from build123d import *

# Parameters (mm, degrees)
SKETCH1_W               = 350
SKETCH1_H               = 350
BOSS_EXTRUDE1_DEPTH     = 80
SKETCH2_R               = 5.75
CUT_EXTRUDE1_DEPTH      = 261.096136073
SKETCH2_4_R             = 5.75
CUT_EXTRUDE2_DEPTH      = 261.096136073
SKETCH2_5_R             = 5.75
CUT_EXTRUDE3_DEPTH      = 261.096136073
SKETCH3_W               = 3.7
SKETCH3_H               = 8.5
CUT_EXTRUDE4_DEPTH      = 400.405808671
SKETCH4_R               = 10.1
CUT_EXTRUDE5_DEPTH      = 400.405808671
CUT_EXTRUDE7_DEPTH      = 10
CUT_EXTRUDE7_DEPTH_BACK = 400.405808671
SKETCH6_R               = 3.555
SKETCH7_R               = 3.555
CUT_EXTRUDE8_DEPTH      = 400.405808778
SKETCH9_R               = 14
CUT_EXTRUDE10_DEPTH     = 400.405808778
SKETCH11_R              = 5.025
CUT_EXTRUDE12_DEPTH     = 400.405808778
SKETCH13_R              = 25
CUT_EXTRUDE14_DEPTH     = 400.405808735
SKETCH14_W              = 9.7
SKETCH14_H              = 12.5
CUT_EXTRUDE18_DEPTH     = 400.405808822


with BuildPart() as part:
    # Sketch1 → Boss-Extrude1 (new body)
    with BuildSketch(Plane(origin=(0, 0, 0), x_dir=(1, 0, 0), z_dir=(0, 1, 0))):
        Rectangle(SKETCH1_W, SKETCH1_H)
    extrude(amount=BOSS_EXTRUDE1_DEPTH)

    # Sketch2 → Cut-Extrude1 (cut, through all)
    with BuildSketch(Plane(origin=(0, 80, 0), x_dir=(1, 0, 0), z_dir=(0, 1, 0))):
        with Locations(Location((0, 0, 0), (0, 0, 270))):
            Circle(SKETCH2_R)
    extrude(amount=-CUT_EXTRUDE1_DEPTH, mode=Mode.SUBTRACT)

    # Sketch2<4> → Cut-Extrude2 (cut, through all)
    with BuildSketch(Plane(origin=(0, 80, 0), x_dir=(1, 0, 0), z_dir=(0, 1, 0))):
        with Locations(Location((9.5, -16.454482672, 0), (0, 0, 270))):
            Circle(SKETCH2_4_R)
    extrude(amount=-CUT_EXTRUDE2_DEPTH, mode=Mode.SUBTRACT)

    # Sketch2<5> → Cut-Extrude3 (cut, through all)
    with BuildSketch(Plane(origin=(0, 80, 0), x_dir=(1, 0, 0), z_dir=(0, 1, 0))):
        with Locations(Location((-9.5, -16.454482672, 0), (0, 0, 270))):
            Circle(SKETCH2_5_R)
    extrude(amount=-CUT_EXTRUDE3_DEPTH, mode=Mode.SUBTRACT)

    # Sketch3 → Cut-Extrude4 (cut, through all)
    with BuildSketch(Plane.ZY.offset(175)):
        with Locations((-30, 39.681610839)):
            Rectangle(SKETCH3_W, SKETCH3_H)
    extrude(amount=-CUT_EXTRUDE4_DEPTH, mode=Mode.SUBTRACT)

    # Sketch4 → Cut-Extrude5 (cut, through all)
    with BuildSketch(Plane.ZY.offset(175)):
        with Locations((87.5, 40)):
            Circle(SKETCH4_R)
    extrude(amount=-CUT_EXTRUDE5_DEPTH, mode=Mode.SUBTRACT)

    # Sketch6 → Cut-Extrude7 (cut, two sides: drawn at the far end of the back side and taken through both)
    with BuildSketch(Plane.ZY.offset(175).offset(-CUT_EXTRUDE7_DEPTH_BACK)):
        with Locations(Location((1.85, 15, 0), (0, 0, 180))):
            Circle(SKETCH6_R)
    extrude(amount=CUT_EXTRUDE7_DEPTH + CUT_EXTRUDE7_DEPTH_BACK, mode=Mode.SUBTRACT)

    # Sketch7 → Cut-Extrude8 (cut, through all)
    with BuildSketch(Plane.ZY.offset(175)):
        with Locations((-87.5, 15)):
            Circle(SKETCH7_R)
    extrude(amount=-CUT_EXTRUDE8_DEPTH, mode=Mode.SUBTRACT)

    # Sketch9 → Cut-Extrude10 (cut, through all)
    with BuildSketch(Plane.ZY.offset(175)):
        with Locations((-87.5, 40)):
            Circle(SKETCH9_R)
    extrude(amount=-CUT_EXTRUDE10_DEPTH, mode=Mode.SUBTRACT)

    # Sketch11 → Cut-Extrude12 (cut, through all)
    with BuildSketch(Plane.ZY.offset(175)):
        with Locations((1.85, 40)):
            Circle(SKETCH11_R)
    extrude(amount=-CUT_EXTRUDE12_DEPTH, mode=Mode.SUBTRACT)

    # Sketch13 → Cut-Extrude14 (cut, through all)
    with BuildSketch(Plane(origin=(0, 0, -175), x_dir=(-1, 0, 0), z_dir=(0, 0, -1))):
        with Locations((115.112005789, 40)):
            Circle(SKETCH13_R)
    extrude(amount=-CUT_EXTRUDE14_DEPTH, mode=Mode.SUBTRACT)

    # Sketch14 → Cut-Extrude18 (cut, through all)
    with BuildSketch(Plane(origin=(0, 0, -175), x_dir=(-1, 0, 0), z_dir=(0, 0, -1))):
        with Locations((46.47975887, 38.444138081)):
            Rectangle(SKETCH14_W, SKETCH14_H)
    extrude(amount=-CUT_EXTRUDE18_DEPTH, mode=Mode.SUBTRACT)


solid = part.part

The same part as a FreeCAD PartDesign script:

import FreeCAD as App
import Part
import Sketcher
from FreeCAD import Vector


def add_polygon(sketch, points):
    """Adds a closed chain of lines whose ends are joined by coincident constraints."""
    first, n = sketch.GeometryCount, len(points)
    for a, b in zip(points, points[1:] + points[:1]):
        sketch.addGeometry(Part.LineSegment(App.Vector(*a, 0), App.Vector(*b, 0)), False)
    for i in range(n):
        sketch.addConstraint(Sketcher.Constraint("Coincident", first + i, 2, first + (i + 1) % n, 1))

doc = App.newDocument("Part")
body = doc.addObject("PartDesign::Body", "Body")

# Sketch on XZ plane
sketch1 = body.newObject("Sketcher::SketchObject", "Sketch")
sketch1.AttachmentSupport = (doc.getObject("XZ_Plane"), [""])
sketch1.MapMode = "FlatFace"
add_polygon(sketch1, [(-175, -175), (-175, 175), (175, 175), (175, -175)])  # lines 0-3
sketch1.addConstraint([
    Sketcher.Constraint("Vertical", 0),
    Sketcher.Constraint("Horizontal", 1),
    Sketcher.Constraint("Vertical", 2),
    Sketcher.Constraint("Horizontal", 3),
    Sketcher.Constraint("Symmetric", 0, 2, 2, 2, -1, 1),
    Sketcher.Constraint("Equal", 3, 0),
    Sketcher.Constraint("DistanceX", 1, 1, 1, 2, 350.0),
])
pad1 = body.newObject("PartDesign::Pad", "Pad")
pad1.Profile = sketch1
pad1.Length = 80
pad1.Reversed = True

# Sketch on XZ plane
sketch2 = body.newObject("Sketcher::SketchObject", "Sketch001")
sketch2.AttachmentSupport = (doc.getObject("XZ_Plane"), [""])
sketch2.MapMode = "FlatFace"
sketch2.AttachmentOffset = App.Placement(Vector(0, 0, -80), App.Rotation())
sketch2.addGeometry(Part.Circle(Vector(0, 0, 0), Vector(0, 0, 1), 5.75), False)
sketch2.addConstraint([
    Sketcher.Constraint("Coincident", 0, 3, -1, 1),
    Sketcher.Constraint("Diameter", 0, 11.5),
])
pocket1 = body.newObject("PartDesign::Pocket", "Pocket")
pocket1.Profile = sketch2
pocket1.Type = "ThroughAll"
pocket1.Reversed = True

# Sketch on XZ plane
sketch3 = body.newObject("Sketcher::SketchObject", "Sketch002")
sketch3.AttachmentSupport = (doc.getObject("XZ_Plane"), [""])
sketch3.MapMode = "FlatFace"
sketch3.AttachmentOffset = App.Placement(Vector(0, 0, -80), App.Rotation())
sketch3.addGeometry(Part.Circle(Vector(9.5, 16.454483, 0), Vector(0, 0, 1), 5.75), False)
sketch3.addConstraint([
    Sketcher.Constraint("Diameter", 0, 11.5),
    Sketcher.Constraint("DistanceX", -1, 1, 0, 3, 9.5),
    Sketcher.Constraint("DistanceY", -1, 1, 0, 3, 16.454483),
])
pocket2 = body.newObject("PartDesign::Pocket", "Pocket001")
pocket2.Profile = sketch3
pocket2.Type = "ThroughAll"
pocket2.Reversed = True

# Sketch on XZ plane
sketch4 = body.newObject("Sketcher::SketchObject", "Sketch003")
sketch4.AttachmentSupport = (doc.getObject("XZ_Plane"), [""])
sketch4.MapMode = "FlatFace"
sketch4.AttachmentOffset = App.Placement(Vector(0, 0, -80), App.Rotation())
sketch4.addGeometry(Part.Circle(Vector(-9.5, 16.454483, 0), Vector(0, 0, 1), 5.75), False)
sketch4.addConstraint([
    Sketcher.Constraint("Diameter", 0, 11.5),
    Sketcher.Constraint("DistanceX", 0, 3, -1, 1, 9.5),
    Sketcher.Constraint("DistanceY", -1, 1, 0, 3, 16.454483),
])
pocket3 = body.newObject("PartDesign::Pocket", "Pocket002")
pocket3.Profile = sketch4
pocket3.Type = "ThroughAll"
pocket3.Reversed = True

# Sketch on YZ plane
sketch5 = body.newObject("Sketcher::SketchObject", "Sketch004")
sketch5.AttachmentSupport = (doc.getObject("YZ_Plane"), [""])
sketch5.MapMode = "FlatFace"
sketch5.AttachmentOffset = App.Placement(Vector(0, 0, -175), App.Rotation())
add_polygon(sketch5, [(43.931611, -31.85), (35.431611, -31.85), (35.431611, -28.15), (43.931611, -28.15)])  # lines 0-3
sketch5.addConstraint([
    Sketcher.Constraint("Horizontal", 0),
    Sketcher.Constraint("Vertical", 1),
    Sketcher.Constraint("Horizontal", 2),
    Sketcher.Constraint("Vertical", 3),
    Sketcher.Constraint("DistanceX", 0, 2, 0, 1, 8.5),
    Sketcher.Constraint("DistanceY", 1, 1, 1, 2, 3.7),
    Sketcher.Constraint("DistanceY", 0, 2, -1, 1, 31.85),
    Sketcher.Constraint("DistanceX", -1, 1, 0, 2, 35.431611),
])
pocket4 = body.newObject("PartDesign::Pocket", "Pocket003")
pocket4.Profile = sketch5
pocket4.Type = "ThroughAll"
pocket4.Reversed = True

# Sketch on YZ plane
sketch6 = body.newObject("Sketcher::SketchObject", "Sketch005")
sketch6.AttachmentSupport = (doc.getObject("YZ_Plane"), [""])
sketch6.MapMode = "FlatFace"
sketch6.AttachmentOffset = App.Placement(Vector(0, 0, -175), App.Rotation())
sketch6.addGeometry(Part.Circle(Vector(40, 87.5, 0), Vector(0, 0, 1), 10.1), False)
sketch6.addConstraint([
    Sketcher.Constraint("Diameter", 0, 20.2),
    Sketcher.Constraint("DistanceX", -1, 1, 0, 3, 40.0),
    Sketcher.Constraint("DistanceY", -1, 1, 0, 3, 87.5),
])
pocket5 = body.newObject("PartDesign::Pocket", "Pocket004")
pocket5.Profile = sketch6
pocket5.Type = "ThroughAll"
pocket5.Reversed = True

# Sketch on YZ plane
sketch7 = body.newObject("Sketcher::SketchObject", "Sketch006")
sketch7.AttachmentSupport = (doc.getObject("YZ_Plane"), [""])
sketch7.MapMode = "FlatFace"
sketch7.AttachmentOffset = App.Placement(Vector(0, 0, -175), App.Rotation())
sketch7.addGeometry(Part.Circle(Vector(15, 1.85, 0), Vector(0, 0, 1), 3.555), False)
sketch7.addConstraint([
    Sketcher.Constraint("Diameter", 0, 7.11),
    Sketcher.Constraint("DistanceX", -1, 1, 0, 3, 15.0),
    Sketcher.Constraint("DistanceY", -1, 1, 0, 3, 1.85),
])
pocket6 = body.newObject("PartDesign::Pocket", "Pocket005")
pocket6.Profile = sketch7
pocket6.Type = "ThroughAll"
pocket6.Midplane = True

# Sketch on YZ plane
sketch8 = body.newObject("Sketcher::SketchObject", "Sketch007")
sketch8.AttachmentSupport = (doc.getObject("YZ_Plane"), [""])
sketch8.MapMode = "FlatFace"
sketch8.AttachmentOffset = App.Placement(Vector(0, 0, -175), App.Rotation())
sketch8.addGeometry(Part.Circle(Vector(15, -87.5, 0), Vector(0, 0, 1), 3.555), False)
sketch8.addConstraint([
    Sketcher.Constraint("Diameter", 0, 7.11),
    Sketcher.Constraint("DistanceX", -1, 1, 0, 3, 15.0),
    Sketcher.Constraint("DistanceY", 0, 3, -1, 1, 87.5),
])
pocket7 = body.newObject("PartDesign::Pocket", "Pocket006")
pocket7.Profile = sketch8
pocket7.Type = "ThroughAll"
pocket7.Reversed = True

# Sketch on YZ plane
sketch9 = body.newObject("Sketcher::SketchObject", "Sketch008")
sketch9.AttachmentSupport = (doc.getObject("YZ_Plane"), [""])
sketch9.MapMode = "FlatFace"
sketch9.AttachmentOffset = App.Placement(Vector(0, 0, -175), App.Rotation())
sketch9.addGeometry(Part.Circle(Vector(40, -87.5, 0), Vector(0, 0, 1), 14), False)
sketch9.addConstraint([
    Sketcher.Constraint("Diameter", 0, 28.0),
    Sketcher.Constraint("DistanceX", -1, 1, 0, 3, 40.0),
    Sketcher.Constraint("DistanceY", 0, 3, -1, 1, 87.5),
])
pocket8 = body.newObject("PartDesign::Pocket", "Pocket007")
pocket8.Profile = sketch9
pocket8.Type = "ThroughAll"
pocket8.Reversed = True

# Sketch on YZ plane
sketch10 = body.newObject("Sketcher::SketchObject", "Sketch009")
sketch10.AttachmentSupport = (doc.getObject("YZ_Plane"), [""])
sketch10.MapMode = "FlatFace"
sketch10.AttachmentOffset = App.Placement(Vector(0, 0, -175), App.Rotation())
sketch10.addGeometry(Part.Circle(Vector(40, 1.85, 0), Vector(0, 0, 1), 5.025), False)
sketch10.addConstraint([
    Sketcher.Constraint("Diameter", 0, 10.05),
    Sketcher.Constraint("DistanceX", -1, 1, 0, 3, 40.0),
    Sketcher.Constraint("DistanceY", -1, 1, 0, 3, 1.85),
])
pocket9 = body.newObject("PartDesign::Pocket", "Pocket008")
pocket9.Profile = sketch10
pocket9.Type = "ThroughAll"
pocket9.Reversed = True

# Sketch on XY plane
sketch11 = body.newObject("Sketcher::SketchObject", "Sketch010")
sketch11.AttachmentSupport = (doc.getObject("XY_Plane"), [""])
sketch11.MapMode = "FlatFace"
sketch11.AttachmentOffset = App.Placement(Vector(0, 0, -175), App.Rotation())
sketch11.addGeometry(Part.Circle(Vector(-115.112006, 40, 0), Vector(0, 0, 1), 25), False)
sketch11.addConstraint([
    Sketcher.Constraint("Diameter", 0, 50.0),
    Sketcher.Constraint("DistanceY", -1, 1, 0, 3, 40.0),
    Sketcher.Constraint("DistanceX", 0, 3, -1, 1, 115.112006),
])
pocket10 = body.newObject("PartDesign::Pocket", "Pocket009")
pocket10.Profile = sketch11
pocket10.Type = "ThroughAll"
pocket10.Reversed = True

# Sketch on XY plane
sketch12 = body.newObject("Sketcher::SketchObject", "Sketch011")
sketch12.AttachmentSupport = (doc.getObject("XY_Plane"), [""])
sketch12.MapMode = "FlatFace"
sketch12.AttachmentOffset = App.Placement(Vector(0, 0, -175), App.Rotation())
add_polygon(sketch12, [(-41.629759, 44.694138), (-41.629759, 32.194138), (-51.329759, 32.194138), (-51.329759, 44.694138)])  # lines 0-3
sketch12.addConstraint([
    Sketcher.Constraint("Vertical", 0),
    Sketcher.Constraint("Horizontal", 1),
    Sketcher.Constraint("Vertical", 2),
    Sketcher.Constraint("Horizontal", 3),
    Sketcher.Constraint("DistanceX", 1, 2, 1, 1, 9.7),
    Sketcher.Constraint("DistanceY", 0, 2, 0, 1, 12.5),
    Sketcher.Constraint("DistanceX", 0, 2, -1, 1, 41.629759),
    Sketcher.Constraint("DistanceY", -1, 1, 0, 2, 32.194138),
])
pocket11 = body.newObject("PartDesign::Pocket", "Pocket010")
pocket11.Profile = sketch12
pocket11.Type = "ThroughAll"
pocket11.Reversed = True

doc.recompute()
